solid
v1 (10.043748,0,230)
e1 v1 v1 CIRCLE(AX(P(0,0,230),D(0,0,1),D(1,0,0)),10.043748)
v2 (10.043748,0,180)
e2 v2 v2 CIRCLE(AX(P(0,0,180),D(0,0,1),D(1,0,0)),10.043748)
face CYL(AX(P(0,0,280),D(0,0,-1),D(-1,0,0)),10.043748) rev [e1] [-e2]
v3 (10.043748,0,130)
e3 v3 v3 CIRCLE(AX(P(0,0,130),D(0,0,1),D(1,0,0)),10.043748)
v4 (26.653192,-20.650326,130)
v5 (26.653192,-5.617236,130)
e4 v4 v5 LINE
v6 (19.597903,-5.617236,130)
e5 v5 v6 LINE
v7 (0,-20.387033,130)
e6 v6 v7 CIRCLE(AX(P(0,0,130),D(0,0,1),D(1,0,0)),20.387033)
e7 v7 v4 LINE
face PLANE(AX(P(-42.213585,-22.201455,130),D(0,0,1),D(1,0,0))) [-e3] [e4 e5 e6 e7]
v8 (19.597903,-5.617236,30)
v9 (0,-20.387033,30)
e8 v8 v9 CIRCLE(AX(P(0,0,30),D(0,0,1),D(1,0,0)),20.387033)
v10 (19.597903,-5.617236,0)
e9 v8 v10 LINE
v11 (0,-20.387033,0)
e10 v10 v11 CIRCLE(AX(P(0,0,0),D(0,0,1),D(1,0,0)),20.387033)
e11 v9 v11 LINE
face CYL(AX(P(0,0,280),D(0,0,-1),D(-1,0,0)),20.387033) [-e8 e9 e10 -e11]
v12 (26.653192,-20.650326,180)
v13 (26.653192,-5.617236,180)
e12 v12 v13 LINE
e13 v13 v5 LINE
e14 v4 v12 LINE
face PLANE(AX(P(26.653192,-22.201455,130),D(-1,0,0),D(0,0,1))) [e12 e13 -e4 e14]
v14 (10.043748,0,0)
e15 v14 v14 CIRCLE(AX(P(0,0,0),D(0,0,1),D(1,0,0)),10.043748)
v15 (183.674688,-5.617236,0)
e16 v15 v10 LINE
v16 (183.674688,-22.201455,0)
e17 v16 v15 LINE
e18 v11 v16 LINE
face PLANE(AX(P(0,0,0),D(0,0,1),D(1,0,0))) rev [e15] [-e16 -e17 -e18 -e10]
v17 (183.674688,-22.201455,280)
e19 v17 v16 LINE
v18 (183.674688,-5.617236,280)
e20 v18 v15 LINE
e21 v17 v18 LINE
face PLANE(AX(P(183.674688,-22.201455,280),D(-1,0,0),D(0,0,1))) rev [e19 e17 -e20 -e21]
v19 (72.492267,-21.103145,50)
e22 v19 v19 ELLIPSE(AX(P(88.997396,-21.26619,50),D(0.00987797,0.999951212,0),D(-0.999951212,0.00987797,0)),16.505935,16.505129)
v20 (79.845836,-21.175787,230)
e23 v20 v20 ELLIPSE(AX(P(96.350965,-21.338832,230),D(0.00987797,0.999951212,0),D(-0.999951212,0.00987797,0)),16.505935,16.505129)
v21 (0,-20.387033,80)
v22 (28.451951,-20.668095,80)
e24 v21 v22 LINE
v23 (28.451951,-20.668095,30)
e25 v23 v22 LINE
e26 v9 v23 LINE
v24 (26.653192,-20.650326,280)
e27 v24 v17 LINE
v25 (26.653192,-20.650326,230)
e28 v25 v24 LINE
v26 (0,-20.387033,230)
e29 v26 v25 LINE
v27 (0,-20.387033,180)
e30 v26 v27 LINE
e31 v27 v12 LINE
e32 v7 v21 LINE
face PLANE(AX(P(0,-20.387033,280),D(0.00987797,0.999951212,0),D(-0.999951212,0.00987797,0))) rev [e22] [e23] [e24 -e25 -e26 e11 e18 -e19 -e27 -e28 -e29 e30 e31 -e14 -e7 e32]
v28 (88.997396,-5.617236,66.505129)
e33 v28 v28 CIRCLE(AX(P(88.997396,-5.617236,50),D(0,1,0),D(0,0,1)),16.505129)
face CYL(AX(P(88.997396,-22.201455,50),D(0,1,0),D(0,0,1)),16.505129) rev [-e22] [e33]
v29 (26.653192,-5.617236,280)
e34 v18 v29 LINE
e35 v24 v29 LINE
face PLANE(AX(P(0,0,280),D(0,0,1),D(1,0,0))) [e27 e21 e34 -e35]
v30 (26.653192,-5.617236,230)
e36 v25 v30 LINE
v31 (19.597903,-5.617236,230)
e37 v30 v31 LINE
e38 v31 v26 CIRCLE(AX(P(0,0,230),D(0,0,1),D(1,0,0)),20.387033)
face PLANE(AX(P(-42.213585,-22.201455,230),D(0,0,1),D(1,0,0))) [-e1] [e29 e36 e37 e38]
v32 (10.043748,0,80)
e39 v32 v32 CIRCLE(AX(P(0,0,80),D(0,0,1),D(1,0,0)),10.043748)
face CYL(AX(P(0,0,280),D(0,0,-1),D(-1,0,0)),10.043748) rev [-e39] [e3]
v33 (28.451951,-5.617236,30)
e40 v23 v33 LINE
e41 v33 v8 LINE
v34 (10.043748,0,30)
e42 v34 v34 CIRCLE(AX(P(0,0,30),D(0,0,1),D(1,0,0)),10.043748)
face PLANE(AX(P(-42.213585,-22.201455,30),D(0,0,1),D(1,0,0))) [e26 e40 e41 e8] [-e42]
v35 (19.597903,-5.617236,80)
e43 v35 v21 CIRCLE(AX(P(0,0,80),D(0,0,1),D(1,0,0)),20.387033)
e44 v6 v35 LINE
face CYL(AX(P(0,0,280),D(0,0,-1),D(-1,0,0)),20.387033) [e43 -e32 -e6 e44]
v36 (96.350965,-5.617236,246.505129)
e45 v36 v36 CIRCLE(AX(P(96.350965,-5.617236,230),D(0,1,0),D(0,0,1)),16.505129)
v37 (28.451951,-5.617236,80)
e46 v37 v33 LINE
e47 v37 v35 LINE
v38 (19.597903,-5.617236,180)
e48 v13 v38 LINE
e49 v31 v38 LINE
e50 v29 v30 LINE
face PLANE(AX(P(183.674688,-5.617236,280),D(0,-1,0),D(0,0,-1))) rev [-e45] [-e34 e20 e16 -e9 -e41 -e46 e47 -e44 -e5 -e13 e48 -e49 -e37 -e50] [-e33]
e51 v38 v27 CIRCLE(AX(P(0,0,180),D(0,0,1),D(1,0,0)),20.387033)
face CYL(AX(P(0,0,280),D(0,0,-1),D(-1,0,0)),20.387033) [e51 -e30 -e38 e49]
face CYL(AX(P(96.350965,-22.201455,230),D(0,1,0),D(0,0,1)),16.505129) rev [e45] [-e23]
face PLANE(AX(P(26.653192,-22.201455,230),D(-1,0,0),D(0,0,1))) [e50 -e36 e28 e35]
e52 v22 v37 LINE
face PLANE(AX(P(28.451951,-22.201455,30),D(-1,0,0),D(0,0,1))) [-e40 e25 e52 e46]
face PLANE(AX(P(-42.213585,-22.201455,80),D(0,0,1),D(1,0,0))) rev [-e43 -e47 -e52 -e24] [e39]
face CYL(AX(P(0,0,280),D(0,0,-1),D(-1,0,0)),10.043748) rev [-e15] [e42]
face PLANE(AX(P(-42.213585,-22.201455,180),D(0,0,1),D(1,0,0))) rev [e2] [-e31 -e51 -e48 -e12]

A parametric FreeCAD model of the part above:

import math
import FreeCAD as App
import Part
import Sketcher
Q = App.Units.Quantity


def add_polygon(sketch, points):
    """Adds a closed chain of lines whose ends are joined by coincident constraints."""
    first, n = sketch.GeometryCount, len(points)
    for a, b in zip(points, points[1:] + points[:1]):
        sketch.addGeometry(Part.LineSegment(App.Vector(*a, 0), App.Vector(*b, 0)), False)
    for i in range(n):
        sketch.addConstraint(Sketcher.Constraint("Coincident", first + i, 2, first + (i + 1) % n, 1))

doc = App.newDocument("Part")
params = doc.addObject("Spreadsheet::Sheet", "Params")
for row, (alias, value) in enumerate([
    ("pad1_length", "280 mm"),
    ("sketch3_height", "50 mm"),
], start=1):
    params.set(f"A{row}", alias)
    params.set(f"B{row}", "=" + value)
    params.setAlias(f"B{row}", alias)

body = doc.addObject("PartDesign::Body", "Body")

# Sketch on XY plane
sketch1 = body.newObject("Sketcher::SketchObject", "Sketch")
sketch1.AttachmentSupport = (doc.getObject("XY_Plane"), [""])
sketch1.MapMode = "FlatFace"
sketch1.addGeometry(Part.LineSegment(App.Vector(0, -20, 0), App.Vector(184, -22, 0)), False)
sketch1.addGeometry(Part.LineSegment(App.Vector(184, -22, 0), App.Vector(184, -6, 0)), False)
sketch1.addGeometry(Part.LineSegment(App.Vector(184, -6, 0), App.Vector(20, -6, 0)), False)
sketch1.addGeometry(Part.ArcOfCircle(Part.Circle(App.Vector(0, 0, 0), App.Vector(0, 0, 1), 20), math.radians(-16), math.radians(270)), False)
sketch1.addGeometry(Part.Circle(App.Vector(0, 0, 0), App.Vector(0, 0, 1), 10), False)
sketch1.addConstraint(Sketcher.Constraint("Coincident", 0, 2, 1, 1))
sketch1.addConstraint(Sketcher.Constraint("Coincident", 1, 2, 2, 1))
sketch1.addConstraint(Sketcher.Constraint("Coincident", 2, 2, 3, 1))
sketch1.addConstraint(Sketcher.Constraint("Coincident", 3, 2, 0, 1))
sketch1.addConstraint(Sketcher.Constraint("Vertical", 1))
sketch1.addConstraint(Sketcher.Constraint("Horizontal", 2))
sketch1.addConstraint(Sketcher.Constraint("Coincident", 3, 3, -1, 1))
sketch1.addConstraint(Sketcher.Constraint("Coincident", 4, 3, -1, 1))
sketch1.addConstraint(Sketcher.Constraint("PointOnObject", 3, 2, -2))
sketch1.addConstraint(Sketcher.Constraint("Diameter", 4, Q("20.087495 mm")))
sketch1.addConstraint(Sketcher.Constraint("Radius", 3, Q("20.387033 mm")))
sketch1.addConstraint(Sketcher.Constraint("DistanceY", 1, 1, 1, 2, Q("16.584219 mm")))
sketch1.addConstraint(Sketcher.Constraint("Distance", 0, Q("183.68365 mm")))
sketch1.addConstraint(Sketcher.Constraint("DistanceX", 2, 2, 2, 1, Q("164.076785 mm")))
pad1 = body.newObject("PartDesign::Pad", "Pad")
pad1.Profile = sketch1
pad1.setExpression("Length", "Params.pad1_length")

# Sketch on XZ plane
sketch2 = body.newObject("Sketcher::SketchObject", "Sketch001")
sketch2.AttachmentSupport = (doc.getObject("XZ_Plane"), [""])
sketch2.MapMode = "FlatFace"
sketch2.AttachmentOffset = App.Placement(App.Vector(0, 0, 5.617236), App.Rotation())
sketch2.addGeometry(Part.Circle(App.Vector(89, 50, 0), App.Vector(0, 0, 1), 17), False)
sketch2.addGeometry(Part.Circle(App.Vector(96, 230, 0), App.Vector(0, 0, 1), 17), False)
sketch2.addConstraint(Sketcher.Constraint("Equal", 0, 1))
sketch2.addConstraint(Sketcher.Constraint("DistanceY", -1, 1, 0, 3, Q("50 mm")))
sketch2.addConstraint(Sketcher.Constraint("DistanceY", -1, 1, 1, 3, Q("230 mm")))
sketch2.addConstraint(Sketcher.Constraint("Diameter", 0, Q("33.010259 mm")))
sketch2.addConstraint(Sketcher.Constraint("DistanceX", 0, 3, 1, 3, Q("7.353569 mm")))
sketch2.addConstraint(Sketcher.Constraint("DistanceX", -1, 1, 0, 3, Q("88.997396 mm")))
pocket1 = body.newObject("PartDesign::Pocket", "Pocket")
pocket1.Profile = sketch2
pocket1.Type = "ThroughAll"
pocket1.Reversed = True

# Sketch on XZ plane
sketch3 = body.newObject("Sketcher::SketchObject", "Sketch002")
sketch3.AttachmentSupport = (doc.getObject("XZ_Plane"), [""])
sketch3.MapMode = "FlatFace"
sketch3.AttachmentOffset = App.Placement(App.Vector(0, 0, 5.617236), App.Rotation())
add_polygon(sketch3, [(-42, 30), (-42, 80), (28, 80), (28, 30)])  # lines 0-3
add_polygon(sketch3, [(-42, 130), (-42, 180), (27, 180), (27, 130)])  # lines 4-7
add_polygon(sketch3, [(-42, 230), (-42, 280), (27, 280), (27, 230)])  # lines 8-11
sketch3.addConstraint(Sketcher.Constraint("Vertical", 0))
sketch3.addConstraint(Sketcher.Constraint("Horizontal", 1))
sketch3.addConstraint(Sketcher.Constraint("Vertical", 2))
sketch3.addConstraint(Sketcher.Constraint("Horizontal", 3))
sketch3.addConstraint(Sketcher.Constraint("Vertical", 4))
sketch3.addConstraint(Sketcher.Constraint("Horizontal", 5))
sketch3.addConstraint(Sketcher.Constraint("Vertical", 6))
sketch3.addConstraint(Sketcher.Constraint("Horizontal", 7))
sketch3.addConstraint(Sketcher.Constraint("Vertical", 8))
sketch3.addConstraint(Sketcher.Constraint("Horizontal", 9))
sketch3.addConstraint(Sketcher.Constraint("Vertical", 10))
sketch3.addConstraint(Sketcher.Constraint("Horizontal", 11))
sketch3.addConstraint(Sketcher.Constraint("Vertical", 3, 2, 4, 2))
sketch3.addConstraint(Sketcher.Constraint("Vertical", 7, 2, 8, 2))
sketch3.addConstraint(Sketcher.Constraint("Vertical", 6, 2, 9, 2))
sketch3.addConstraint(Sketcher.Constraint("Equal", 2, 4))
sketch3.addConstraint(Sketcher.Constraint("Equal", 6, 8))
sketch3.addConstraint(Sketcher.Constraint("DistanceY", 0, 1, 0, 2, Q("50 mm")))
sketch3.addConstraint(Sketcher.Constraint("DistanceY", -1, 1, 0, 2, Q("80 mm")))
sketch3.addConstraint(Sketcher.Constraint("DistanceY", -1, 1, 4, 2, Q("180 mm")))
sketch3.addConstraint(Sketcher.Constraint("DistanceY", -1, 1, 8, 2, Q("280 mm")))
sketch3.addConstraint(Sketcher.Constraint("DistanceX", 1, 1, 1, 2, Q("70.665536 mm")))
sketch3.addConstraint(Sketcher.Constraint("DistanceX", 5, 1, 5, 2, Q("68.866777 mm")))
sketch3.addConstraint(Sketcher.Constraint("DistanceX", -1, 1, 1, 2, Q("28.451951 mm")))
sketch3.setExpression("Constraints[29]", "Params.sketch3_height")
pocket2 = body.newObject("PartDesign::Pocket", "Pocket001")
pocket2.Profile = sketch3
pocket2.Type = "ThroughAll"
pocket2.Midplane = True

doc.recompute()
